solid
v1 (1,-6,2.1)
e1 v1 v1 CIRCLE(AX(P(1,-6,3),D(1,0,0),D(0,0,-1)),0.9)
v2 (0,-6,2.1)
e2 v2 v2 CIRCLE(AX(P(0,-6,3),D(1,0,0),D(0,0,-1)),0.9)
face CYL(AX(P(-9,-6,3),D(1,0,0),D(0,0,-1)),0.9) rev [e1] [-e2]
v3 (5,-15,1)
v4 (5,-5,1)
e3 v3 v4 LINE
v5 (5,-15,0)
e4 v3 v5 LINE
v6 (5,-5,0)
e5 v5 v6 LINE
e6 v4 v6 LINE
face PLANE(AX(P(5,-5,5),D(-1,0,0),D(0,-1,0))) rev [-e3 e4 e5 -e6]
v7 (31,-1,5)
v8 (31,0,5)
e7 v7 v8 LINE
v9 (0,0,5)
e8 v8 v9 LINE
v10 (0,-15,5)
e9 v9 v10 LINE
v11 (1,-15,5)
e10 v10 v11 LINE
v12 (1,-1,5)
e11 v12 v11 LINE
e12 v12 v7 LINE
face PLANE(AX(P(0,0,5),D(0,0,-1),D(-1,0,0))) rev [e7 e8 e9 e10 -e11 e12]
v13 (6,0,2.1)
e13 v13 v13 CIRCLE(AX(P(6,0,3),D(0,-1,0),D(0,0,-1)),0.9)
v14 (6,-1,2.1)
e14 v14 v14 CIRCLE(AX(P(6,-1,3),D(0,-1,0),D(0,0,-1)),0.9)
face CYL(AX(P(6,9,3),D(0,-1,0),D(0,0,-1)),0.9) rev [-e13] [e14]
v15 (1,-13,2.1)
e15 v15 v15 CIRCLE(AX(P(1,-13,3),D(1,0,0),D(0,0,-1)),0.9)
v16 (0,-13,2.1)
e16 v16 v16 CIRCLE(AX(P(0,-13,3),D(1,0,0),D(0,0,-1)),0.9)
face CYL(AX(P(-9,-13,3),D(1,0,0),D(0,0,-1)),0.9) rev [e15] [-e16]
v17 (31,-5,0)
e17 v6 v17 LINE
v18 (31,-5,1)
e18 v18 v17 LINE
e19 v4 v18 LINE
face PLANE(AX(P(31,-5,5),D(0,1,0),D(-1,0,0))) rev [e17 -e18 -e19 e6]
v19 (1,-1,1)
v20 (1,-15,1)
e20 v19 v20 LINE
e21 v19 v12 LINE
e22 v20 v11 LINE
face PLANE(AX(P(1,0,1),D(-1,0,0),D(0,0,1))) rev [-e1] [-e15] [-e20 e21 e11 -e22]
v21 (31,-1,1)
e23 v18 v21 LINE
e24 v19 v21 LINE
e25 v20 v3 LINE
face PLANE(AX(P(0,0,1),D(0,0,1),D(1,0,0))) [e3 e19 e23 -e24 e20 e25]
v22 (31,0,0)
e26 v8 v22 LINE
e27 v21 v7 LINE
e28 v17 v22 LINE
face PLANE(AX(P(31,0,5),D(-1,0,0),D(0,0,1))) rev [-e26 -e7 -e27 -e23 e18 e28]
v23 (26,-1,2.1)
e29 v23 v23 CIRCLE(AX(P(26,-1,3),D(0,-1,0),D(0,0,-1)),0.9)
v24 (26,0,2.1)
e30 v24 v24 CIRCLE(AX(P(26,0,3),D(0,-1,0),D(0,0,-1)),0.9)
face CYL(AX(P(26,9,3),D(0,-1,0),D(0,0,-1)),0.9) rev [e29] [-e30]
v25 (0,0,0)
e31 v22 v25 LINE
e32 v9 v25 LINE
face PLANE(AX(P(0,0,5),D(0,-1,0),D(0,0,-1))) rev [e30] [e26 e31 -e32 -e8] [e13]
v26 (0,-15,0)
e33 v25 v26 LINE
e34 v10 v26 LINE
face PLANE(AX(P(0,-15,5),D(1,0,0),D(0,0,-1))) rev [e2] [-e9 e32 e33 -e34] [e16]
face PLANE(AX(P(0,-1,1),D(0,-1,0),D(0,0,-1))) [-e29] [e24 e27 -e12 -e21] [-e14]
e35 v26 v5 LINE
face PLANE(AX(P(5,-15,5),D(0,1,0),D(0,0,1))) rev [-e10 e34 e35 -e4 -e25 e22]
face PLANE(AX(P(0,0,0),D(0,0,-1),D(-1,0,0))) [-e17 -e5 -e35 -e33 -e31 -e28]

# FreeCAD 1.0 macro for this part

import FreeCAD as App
import Part
import Sketcher

V = App.Vector
Q = App.Units.Quantity

doc = App.newDocument("Part")
params = doc.addObject("Spreadsheet::Sheet", "Params")
for row, (alias, value) in enumerate([
    ("sketch1_width", "31 mm"),
    ("sketch1_width2", "5 mm"),
    ("sketch1_height", "15 mm"),
    ("pad1_length", "5 mm"),
    ("sketch2_width", "4 mm"),
    ("sketch2_width2", "26 mm"),
    ("sketch2_height", "10 mm"),
    ("pocket1_length", "4 mm"),
    ("sketch3_diameter", "1.8 mm"),
    ("pocket2_length", "10 mm"),
    ("sketch4_diameter", "1.8 mm"),
    ("pocket3_length", "10 mm"),
], start=1):
    params.set(f"A{row}", alias)
    params.set(f"B{row}", "=" + value)
    params.setAlias(f"B{row}", alias)

body = doc.addObject("PartDesign::Body", "Body")

sketch1 = body.newObject("Sketcher::SketchObject", "Sketch")
sketch1.AttachmentSupport = (doc.getObject("XY_Plane"), [""])
sketch1.MapMode = "FlatFace"
sketch1.addGeometry([
    Part.LineSegment(V(31, 0, 0), V(0, 0, 0)),
    Part.LineSegment(V(0, 0, 0), V(0, -15, 0)),
    Part.LineSegment(V(0, -15, 0), V(5, -15, 0)),
    Part.LineSegment(V(5, -15, 0), V(5, -5, 0)),
    Part.LineSegment(V(5, -5, 0), V(31, -5, 0)),
    Part.LineSegment(V(31, -5, 0), V(31, 0, 0)),
], False)
sketch1.addConstraint([
    Sketcher.Constraint("Coincident", 0, 2, 1, 1),
    Sketcher.Constraint("Coincident", 1, 2, 2, 1),
    Sketcher.Constraint("Coincident", 2, 2, 3, 1),
    Sketcher.Constraint("Coincident", 3, 2, 4, 1),
    Sketcher.Constraint("Coincident", 4, 2, 5, 1),
    Sketcher.Constraint("Coincident", 5, 2, 0, 1),
    Sketcher.Constraint("Horizontal", 0),
    Sketcher.Constraint("Vertical", 1),
    Sketcher.Constraint("Horizontal", 2),
    Sketcher.Constraint("Vertical", 3),
    Sketcher.Constraint("Horizontal", 4),
    Sketcher.Constraint("Vertical", 5),
    Sketcher.Constraint("Coincident", 0, 2, -1, 1),
    Sketcher.Constraint("Equal", 2, 5),
    Sketcher.Constraint("DistanceX", 0, 2, 0, 1, Q("31 mm")),
    Sketcher.Constraint("DistanceX", 2, 1, 2, 2, Q("5 mm")),
    Sketcher.Constraint("DistanceY", 1, 2, 1, 1, Q("15 mm")),
])
sketch1.setExpression("Constraints[14]", "Params.sketch1_width")
sketch1.setExpression("Constraints[15]", "Params.sketch1_width2")
sketch1.setExpression("Constraints[16]", "Params.sketch1_height")
pad1 = body.newObject("PartDesign::Pad", "Pad")
pad1.Profile = sketch1
pad1.setExpression("Length", "Params.pad1_length")

sketch2 = body.newObject("Sketcher::SketchObject", "Sketch001")
sketch2.AttachmentSupport = (doc.getObject("XY_Plane"), [""])
sketch2.MapMode = "FlatFace"
sketch2.AttachmentOffset = App.Placement(V(0, 0, 5), App.Rotation())
sketch2.addGeometry([
    Part.LineSegment(V(1, -15, 0), V(5, -15, 0)),
    Part.LineSegment(V(5, -15, 0), V(5, -5, 0)),
    Part.LineSegment(V(5, -5, 0), V(31, -5, 0)),
    Part.LineSegment(V(31, -5, 0), V(31, -1, 0)),
    Part.LineSegment(V(31, -1, 0), V(1, -1, 0)),
    Part.LineSegment(V(1, -1, 0), V(1, -15, 0)),
], False)
sketch2.addConstraint([
    Sketcher.Constraint("Coincident", 0, 2, 1, 1),
    Sketcher.Constraint("Coincident", 1, 2, 2, 1),
    Sketcher.Constraint("Coincident", 2, 2, 3, 1),
    Sketcher.Constraint("Coincident", 3, 2, 4, 1),
    Sketcher.Constraint("Coincident", 4, 2, 5, 1),
    Sketcher.Constraint("Coincident", 5, 2, 0, 1),
    Sketcher.Constraint("Horizontal", 0),
    Sketcher.Constraint("Vertical", 1),
    Sketcher.Constraint("Horizontal", 2),
    Sketcher.Constraint("Vertical", 3),
    Sketcher.Constraint("Horizontal", 4),
    Sketcher.Constraint("Vertical", 5),
    Sketcher.Constraint("Equal", 0, 3),
    Sketcher.Constraint("DistanceX", 0, 1, 0, 2, Q("4 mm")),
    Sketcher.Constraint("DistanceX", 2, 1, 2, 2, Q("26 mm")),
    Sketcher.Constraint("DistanceY", 1, 1, 1, 2, Q("10 mm")),
    Sketcher.Constraint("DistanceX", -1, 1, 0, 2, Q("5 mm")),
    Sketcher.Constraint("DistanceY", 0, 2, -1, 1, Q("15 mm")),
])
sketch2.setExpression("Constraints[13]", "Params.sketch2_width")
sketch2.setExpression("Constraints[14]", "Params.sketch2_width2")
sketch2.setExpression("Constraints[15]", "Params.sketch2_height")
pocket1 = body.newObject("PartDesign::Pocket", "Pocket")
pocket1.Profile = sketch2
pocket1.setExpression("Length", "Params.pocket1_length")

sketch3 = body.newObject("Sketcher::SketchObject", "Sketch002")
sketch3.AttachmentSupport = (doc.getObject("XZ_Plane"), [""])
sketch3.MapMode = "FlatFace"
sketch3.AttachmentOffset = App.Placement(V(0, 0, 1), App.Rotation())
sketch3.addGeometry([
    Part.Circle(V(26, 3, 0), V(0, 0, 1), 0.9),
    Part.Circle(V(6, 3, 0), V(0, 0, 1), 0.9),
], False)
sketch3.addConstraint([
    Sketcher.Constraint("Equal", 0, 1),
    Sketcher.Constraint("Horizontal", 0, 3, 1, 3),
    Sketcher.Constraint("Diameter", 0, Q("1.8 mm")),
    Sketcher.Constraint("DistanceX", -1, 1, 0, 3, Q("26 mm")),
    Sketcher.Constraint("DistanceY", -1, 1, 0, 3, Q("3 mm")),
    Sketcher.Constraint("DistanceX", -1, 1, 1, 3, Q("6 mm")),
])
sketch3.setExpression("Constraints[2]", "Params.sketch3_diameter")
pocket2 = body.newObject("PartDesign::Pocket", "Pocket001")
pocket2.Profile = sketch3
pocket2.setExpression("Length", "Params.pocket2_length")

sketch4 = body.newObject("Sketcher::SketchObject", "Sketch003")
sketch4.AttachmentSupport = (doc.getObject("YZ_Plane"), [""])
sketch4.MapMode = "FlatFace"
sketch4.AttachmentOffset = App.Placement(V(0, 0, 1), App.Rotation())
sketch4.addGeometry([
    Part.Circle(V(-6, 3, 0), V(0, 0, 1), 0.9),
    Part.Circle(V(-13, 3, 0), V(0, 0, 1), 0.9),
], False)
sketch4.addConstraint([
    Sketcher.Constraint("Equal", 0, 1),
    Sketcher.Constraint("Horizontal", 0, 3, 1, 3),
    Sketcher.Constraint("Diameter", 0, Q("1.8 mm")),
    Sketcher.Constraint("DistanceX", 0, 3, -1, 1, Q("6 mm")),
    Sketcher.Constraint("DistanceY", -1, 1, 0, 3, Q("3 mm")),
    Sketcher.Constraint("DistanceX", 1, 3, -1, 1, Q("13 mm")),
])
sketch4.setExpression("Constraints[2]", "Params.sketch4_diameter")
pocket3 = body.newObject("PartDesign::Pocket", "Pocket002")
pocket3.Profile = sketch4
pocket3.setExpression("Length", "Params.pocket3_length")

doc.recompute()
